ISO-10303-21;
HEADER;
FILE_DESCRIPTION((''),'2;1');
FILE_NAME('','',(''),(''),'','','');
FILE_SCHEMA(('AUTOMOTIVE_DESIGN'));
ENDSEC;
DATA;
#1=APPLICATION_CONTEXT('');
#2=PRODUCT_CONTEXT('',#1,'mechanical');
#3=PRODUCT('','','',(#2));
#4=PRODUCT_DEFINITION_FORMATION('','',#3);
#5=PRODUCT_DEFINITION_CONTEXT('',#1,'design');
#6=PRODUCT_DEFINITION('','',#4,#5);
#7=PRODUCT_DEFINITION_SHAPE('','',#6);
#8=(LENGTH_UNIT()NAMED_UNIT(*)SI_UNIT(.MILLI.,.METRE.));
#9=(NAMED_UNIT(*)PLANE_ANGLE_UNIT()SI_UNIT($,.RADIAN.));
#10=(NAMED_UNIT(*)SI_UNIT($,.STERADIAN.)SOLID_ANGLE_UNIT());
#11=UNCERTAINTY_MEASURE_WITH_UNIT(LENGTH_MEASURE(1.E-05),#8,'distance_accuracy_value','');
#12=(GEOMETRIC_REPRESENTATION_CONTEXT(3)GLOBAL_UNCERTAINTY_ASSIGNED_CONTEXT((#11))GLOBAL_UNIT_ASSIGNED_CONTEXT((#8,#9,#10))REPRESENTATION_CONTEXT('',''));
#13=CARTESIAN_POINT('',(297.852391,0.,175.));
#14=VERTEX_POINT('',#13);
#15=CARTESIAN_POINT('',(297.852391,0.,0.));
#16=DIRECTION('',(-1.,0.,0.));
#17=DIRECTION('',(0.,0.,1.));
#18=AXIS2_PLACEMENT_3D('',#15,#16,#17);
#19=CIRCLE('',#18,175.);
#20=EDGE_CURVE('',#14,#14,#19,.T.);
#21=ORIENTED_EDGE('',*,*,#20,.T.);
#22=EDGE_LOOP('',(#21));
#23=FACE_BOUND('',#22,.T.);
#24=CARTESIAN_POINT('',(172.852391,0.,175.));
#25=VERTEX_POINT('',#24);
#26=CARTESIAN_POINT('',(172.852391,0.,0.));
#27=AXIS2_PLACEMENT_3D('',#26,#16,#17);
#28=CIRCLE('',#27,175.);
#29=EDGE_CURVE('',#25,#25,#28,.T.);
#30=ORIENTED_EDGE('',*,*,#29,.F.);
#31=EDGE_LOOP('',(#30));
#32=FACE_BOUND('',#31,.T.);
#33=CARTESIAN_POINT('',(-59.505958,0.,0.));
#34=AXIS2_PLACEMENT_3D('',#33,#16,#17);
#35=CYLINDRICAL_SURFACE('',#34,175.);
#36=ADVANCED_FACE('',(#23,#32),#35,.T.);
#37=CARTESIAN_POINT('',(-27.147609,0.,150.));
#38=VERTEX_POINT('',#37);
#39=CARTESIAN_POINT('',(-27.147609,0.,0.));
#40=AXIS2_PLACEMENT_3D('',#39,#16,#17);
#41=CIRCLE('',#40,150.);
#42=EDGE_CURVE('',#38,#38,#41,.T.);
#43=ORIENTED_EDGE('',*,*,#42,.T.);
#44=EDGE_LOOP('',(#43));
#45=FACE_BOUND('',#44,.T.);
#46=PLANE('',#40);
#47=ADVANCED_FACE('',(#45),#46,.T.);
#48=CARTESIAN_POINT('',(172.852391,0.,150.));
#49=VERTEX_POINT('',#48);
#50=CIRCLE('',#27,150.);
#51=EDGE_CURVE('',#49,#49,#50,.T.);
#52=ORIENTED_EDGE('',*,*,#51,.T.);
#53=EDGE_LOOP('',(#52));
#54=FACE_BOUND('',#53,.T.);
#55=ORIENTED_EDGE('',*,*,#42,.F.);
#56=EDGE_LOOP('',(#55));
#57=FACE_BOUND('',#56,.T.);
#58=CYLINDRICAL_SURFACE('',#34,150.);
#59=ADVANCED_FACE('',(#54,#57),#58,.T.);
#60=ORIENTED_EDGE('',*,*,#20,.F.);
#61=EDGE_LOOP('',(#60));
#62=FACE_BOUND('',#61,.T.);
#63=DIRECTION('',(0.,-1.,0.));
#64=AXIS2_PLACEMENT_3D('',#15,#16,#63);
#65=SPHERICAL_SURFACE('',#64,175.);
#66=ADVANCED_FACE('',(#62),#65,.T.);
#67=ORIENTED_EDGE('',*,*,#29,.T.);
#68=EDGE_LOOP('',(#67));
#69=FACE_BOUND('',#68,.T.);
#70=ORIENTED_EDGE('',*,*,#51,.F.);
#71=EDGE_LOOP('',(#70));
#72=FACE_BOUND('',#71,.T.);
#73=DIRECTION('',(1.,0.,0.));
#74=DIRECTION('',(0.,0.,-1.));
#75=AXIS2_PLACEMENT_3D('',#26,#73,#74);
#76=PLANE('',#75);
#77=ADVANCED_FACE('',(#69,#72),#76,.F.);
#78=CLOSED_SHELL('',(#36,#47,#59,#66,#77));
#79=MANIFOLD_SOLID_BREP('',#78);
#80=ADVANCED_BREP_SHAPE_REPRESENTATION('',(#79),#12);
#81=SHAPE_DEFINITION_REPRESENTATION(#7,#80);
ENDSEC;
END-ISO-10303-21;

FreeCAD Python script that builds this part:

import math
import FreeCAD as App
import Part
import Sketcher
from FreeCAD import Vector

doc = App.newDocument("Part")
body = doc.addObject("PartDesign::Body", "Body")

# Sketch on XY plane
sketch1 = body.newObject("Sketcher::SketchObject", "Sketch")
sketch1.AttachmentSupport = (doc.getObject("XY_Plane"), [""])
sketch1.MapMode = "FlatFace"
sketch1.addGeometry(Part.LineSegment(Vector(-27, 0, 0), Vector(-27, -150, 0)), False)
sketch1.addGeometry(Part.LineSegment(Vector(-27, -150, 0), Vector(173, -150, 0)), False)
sketch1.addGeometry(Part.LineSegment(Vector(173, -150, 0), Vector(173, -175, 0)), False)
sketch1.addGeometry(Part.LineSegment(Vector(173, -175, 0), Vector(298, -175, 0)), False)
sketch1.addGeometry(Part.ArcOfCircle(Part.Circle(Vector(298, 0, 0), Vector(0, 0, 1), 175), math.radians(-90), math.radians(0)), False)
sketch1.addGeometry(Part.LineSegment(Vector(473, 0, 0), Vector(-27, 0, 0)), False)
sketch1.addConstraint(Sketcher.Constraint("Coincident", 0, 2, 1, 1))
sketch1.addConstraint(Sketcher.Constraint("Coincident", 1, 2, 2, 1))
sketch1.addConstraint(Sketcher.Constraint("Coincident", 2, 2, 3, 1))
sketch1.addConstraint(Sketcher.Constraint("Tangent", 3, 2, 4, 1))
sketch1.addConstraint(Sketcher.Constraint("Coincident", 4, 2, 5, 1))
sketch1.addConstraint(Sketcher.Constraint("Coincident", 5, 2, 0, 1))
sketch1.addConstraint(Sketcher.Constraint("Vertical", 0))
sketch1.addConstraint(Sketcher.Constraint("Horizontal", 1))
sketch1.addConstraint(Sketcher.Constraint("Vertical", 2))
sketch1.addConstraint(Sketcher.Constraint("Horizontal", 3))
sketch1.addConstraint(Sketcher.Constraint("Horizontal", 5))
sketch1.addConstraint(Sketcher.Constraint("PointOnObject", 4, 3, -1))
sketch1.addConstraint(Sketcher.Constraint("PointOnObject", 4, 2, -1))
sketch1.addConstraint(Sketcher.Constraint("Radius", 4, 175.0))
sketch1.addConstraint(Sketcher.Constraint("DistanceX", 1, 1, 1, 2, 200.0))
sketch1.addConstraint(Sketcher.Constraint("DistanceX", 3, 1, 3, 2, 125.0))
sketch1.addConstraint(Sketcher.Constraint("DistanceY", 0, 2, 0, 1, 150.0))
sketch1.addConstraint(Sketcher.Constraint("DistanceX", -1, 1, 4, 3, 297.852391))
revolution = body.newObject("PartDesign::Revolution", "Revolution")
revolution.Profile = sketch1
revolution.ReferenceAxis = (sketch1, ["H_Axis"])
revolution.Angle = 360

doc.recompute()
